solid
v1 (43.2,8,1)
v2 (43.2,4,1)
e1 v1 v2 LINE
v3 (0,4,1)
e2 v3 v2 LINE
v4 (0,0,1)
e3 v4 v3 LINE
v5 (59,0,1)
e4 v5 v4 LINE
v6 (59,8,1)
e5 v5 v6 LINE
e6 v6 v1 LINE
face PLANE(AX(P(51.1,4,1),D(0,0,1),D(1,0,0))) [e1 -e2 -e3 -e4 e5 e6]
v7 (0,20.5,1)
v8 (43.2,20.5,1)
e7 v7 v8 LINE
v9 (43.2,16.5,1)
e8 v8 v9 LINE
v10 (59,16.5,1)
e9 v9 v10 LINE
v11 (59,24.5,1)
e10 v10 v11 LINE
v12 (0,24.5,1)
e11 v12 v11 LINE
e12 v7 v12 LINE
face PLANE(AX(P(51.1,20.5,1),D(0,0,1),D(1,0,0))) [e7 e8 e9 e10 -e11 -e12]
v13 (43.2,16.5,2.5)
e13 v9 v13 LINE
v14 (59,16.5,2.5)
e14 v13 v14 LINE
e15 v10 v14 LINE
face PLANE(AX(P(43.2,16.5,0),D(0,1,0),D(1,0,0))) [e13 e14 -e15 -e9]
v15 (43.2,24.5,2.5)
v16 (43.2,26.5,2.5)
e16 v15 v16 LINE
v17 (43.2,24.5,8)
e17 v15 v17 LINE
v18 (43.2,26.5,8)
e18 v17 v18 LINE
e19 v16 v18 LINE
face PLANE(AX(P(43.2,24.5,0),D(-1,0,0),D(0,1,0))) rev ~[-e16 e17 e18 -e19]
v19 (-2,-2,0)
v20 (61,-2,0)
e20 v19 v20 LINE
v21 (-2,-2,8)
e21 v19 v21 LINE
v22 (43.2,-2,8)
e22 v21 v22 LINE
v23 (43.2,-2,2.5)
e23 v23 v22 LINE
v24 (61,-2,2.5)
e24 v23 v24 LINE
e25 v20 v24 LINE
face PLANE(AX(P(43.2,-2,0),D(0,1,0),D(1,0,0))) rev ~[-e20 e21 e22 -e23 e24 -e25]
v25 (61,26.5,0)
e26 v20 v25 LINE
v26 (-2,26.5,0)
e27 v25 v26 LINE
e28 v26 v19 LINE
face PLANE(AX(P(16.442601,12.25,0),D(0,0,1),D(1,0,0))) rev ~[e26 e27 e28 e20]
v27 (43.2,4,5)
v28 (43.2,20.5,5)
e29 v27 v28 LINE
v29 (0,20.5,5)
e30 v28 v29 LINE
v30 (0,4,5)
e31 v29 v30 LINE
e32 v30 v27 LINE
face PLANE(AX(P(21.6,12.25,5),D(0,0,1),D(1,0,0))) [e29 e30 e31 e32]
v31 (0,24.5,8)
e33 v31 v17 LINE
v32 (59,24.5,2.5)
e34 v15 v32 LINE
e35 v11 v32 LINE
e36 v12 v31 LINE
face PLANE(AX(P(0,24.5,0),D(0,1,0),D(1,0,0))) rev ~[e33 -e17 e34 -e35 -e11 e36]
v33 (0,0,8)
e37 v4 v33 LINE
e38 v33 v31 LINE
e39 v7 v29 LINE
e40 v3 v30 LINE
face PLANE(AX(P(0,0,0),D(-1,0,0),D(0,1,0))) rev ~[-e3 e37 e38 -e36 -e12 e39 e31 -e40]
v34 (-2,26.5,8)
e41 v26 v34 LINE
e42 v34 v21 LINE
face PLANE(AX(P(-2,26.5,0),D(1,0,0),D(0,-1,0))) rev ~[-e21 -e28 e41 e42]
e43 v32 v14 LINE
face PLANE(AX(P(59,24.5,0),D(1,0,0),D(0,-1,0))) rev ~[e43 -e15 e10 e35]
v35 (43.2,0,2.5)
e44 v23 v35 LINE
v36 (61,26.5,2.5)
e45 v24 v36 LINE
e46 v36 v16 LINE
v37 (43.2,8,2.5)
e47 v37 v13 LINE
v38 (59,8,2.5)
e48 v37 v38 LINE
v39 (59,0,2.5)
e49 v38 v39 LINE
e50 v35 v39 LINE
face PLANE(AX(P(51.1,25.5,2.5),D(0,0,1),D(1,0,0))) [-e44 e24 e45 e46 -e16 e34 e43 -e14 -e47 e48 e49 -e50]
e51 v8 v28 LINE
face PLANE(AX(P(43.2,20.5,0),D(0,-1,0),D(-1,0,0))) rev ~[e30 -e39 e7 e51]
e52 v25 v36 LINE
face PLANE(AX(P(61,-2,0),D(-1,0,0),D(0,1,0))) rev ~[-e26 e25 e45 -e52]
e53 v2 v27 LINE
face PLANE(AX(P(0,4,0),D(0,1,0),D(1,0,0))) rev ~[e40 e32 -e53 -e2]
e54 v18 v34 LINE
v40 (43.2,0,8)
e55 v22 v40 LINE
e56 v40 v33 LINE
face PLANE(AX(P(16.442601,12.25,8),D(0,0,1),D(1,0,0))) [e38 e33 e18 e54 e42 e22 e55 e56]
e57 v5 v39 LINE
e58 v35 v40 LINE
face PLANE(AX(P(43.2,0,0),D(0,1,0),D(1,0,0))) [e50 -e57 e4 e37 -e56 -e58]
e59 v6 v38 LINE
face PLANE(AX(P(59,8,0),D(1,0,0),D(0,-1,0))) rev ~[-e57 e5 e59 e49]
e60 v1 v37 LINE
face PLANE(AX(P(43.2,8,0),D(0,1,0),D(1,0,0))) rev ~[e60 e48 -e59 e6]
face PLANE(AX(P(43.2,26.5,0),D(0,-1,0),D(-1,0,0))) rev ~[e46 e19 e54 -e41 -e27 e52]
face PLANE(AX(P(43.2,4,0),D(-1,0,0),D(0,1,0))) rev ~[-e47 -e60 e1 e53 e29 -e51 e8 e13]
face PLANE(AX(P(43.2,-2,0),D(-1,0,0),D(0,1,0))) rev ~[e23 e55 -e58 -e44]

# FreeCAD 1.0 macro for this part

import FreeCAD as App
import Part
import Sketcher

V = App.Vector
Q = App.Units.Quantity

doc = App.newDocument("Part")
body = doc.addObject("PartDesign::Body", "Body")

sketch1 = body.newObject("Sketcher::SketchObject", "Sketch")
sketch1.AttachmentSupport = (doc.getObject("XY_Plane"), [""])
sketch1.MapMode = "FlatFace"
sketch1.addGeometry(Part.LineSegment(V(59, 16.5, 0), V(59, 24.5, 0)), False)
sketch1.addGeometry(Part.LineSegment(V(59, 24.5, 0), V(0, 24.5, 0)), False)
sketch1.addGeometry(Part.LineSegment(V(0, 24.5, 0), V(0, 20.5, 0)), False)
sketch1.addGeometry(Part.LineSegment(V(0, 20.5, 0), V(43.2, 20.5, 0)), False)
sketch1.addGeometry(Part.LineSegment(V(43.2, 20.5, 0), V(43.2, 16.5, 0)), False)
sketch1.addGeometry(Part.LineSegment(V(43.2, 16.5, 0), V(59, 16.5, 0)), False)
sketch1.addConstraint(Sketcher.Constraint("Coincident", 0, 2, 1, 1))
sketch1.addConstraint(Sketcher.Constraint("Coincident", 1, 2, 2, 1))
sketch1.addConstraint(Sketcher.Constraint("Coincident", 2, 2, 3, 1))
sketch1.addConstraint(Sketcher.Constraint("Coincident", 3, 2, 4, 1))
sketch1.addConstraint(Sketcher.Constraint("Coincident", 4, 2, 5, 1))
sketch1.addConstraint(Sketcher.Constraint("Coincident", 5, 2, 0, 1))
sketch1.addConstraint(Sketcher.Constraint("Vertical", 0))
sketch1.addConstraint(Sketcher.Constraint("Horizontal", 1))
sketch1.addConstraint(Sketcher.Constraint("Vertical", 2))
sketch1.addConstraint(Sketcher.Constraint("Horizontal", 3))
sketch1.addConstraint(Sketcher.Constraint("Vertical", 4))
sketch1.addConstraint(Sketcher.Constraint("Horizontal", 5))
sketch1.addConstraint(Sketcher.Constraint("PointOnObject", 1, 2, -2))
sketch1.addConstraint(Sketcher.Constraint("Equal", 2, 4))
sketch1.addConstraint(Sketcher.Constraint("DistanceX", 1, 2, 1, 1, Q("59 mm")))
sketch1.addConstraint(Sketcher.Constraint("DistanceY", 0, 1, 0, 2, Q("8 mm")))
sketch1.addConstraint(Sketcher.Constraint("DistanceX", 3, 1, 3, 2, Q("43.2 mm")))
sketch1.addConstraint(Sketcher.Constraint("DistanceY", -1, 1, 0, 2, Q("24.5 mm")))
pad1 = body.newObject("PartDesign::Pad", "Pad")
pad1.Profile = sketch1
pad1.Length = 1
body2 = doc.addObject("PartDesign::Body", "Body001")

sketch2 = body2.newObject("Sketcher::SketchObject", "Sketch001")
sketch2.AttachmentSupport = (doc.getObject("XY_Plane001"), [""])
sketch2.MapMode = "FlatFace"
sketch2.addGeometry(Part.LineSegment(V(59, 0, 0), V(59, 8, 0)), False)
sketch2.addGeometry(Part.LineSegment(V(59, 8, 0), V(43.2, 8, 0)), False)
sketch2.addGeometry(Part.LineSegment(V(43.2, 8, 0), V(43.2, 4, 0)), False)
sketch2.addGeometry(Part.LineSegment(V(43.2, 4, 0), V(0, 4, 0)), False)
sketch2.addGeometry(Part.LineSegment(V(0, 4, 0), V(0, 0, 0)), False)
sketch2.addGeometry(Part.LineSegment(V(0, 0, 0), V(59, 0, 0)), False)
sketch2.addConstraint(Sketcher.Constraint("Coincident", 0, 2, 1, 1))
sketch2.addConstraint(Sketcher.Constraint("Coincident", 1, 2, 2, 1))
sketch2.addConstraint(Sketcher.Constraint("Coincident", 2, 2, 3, 1))
sketch2.addConstraint(Sketcher.Constraint("Coincident", 3, 2, 4, 1))
sketch2.addConstraint(Sketcher.Constraint("Coincident", 4, 2, 5, 1))
sketch2.addConstraint(Sketcher.Constraint("Coincident", 5, 2, 0, 1))
sketch2.addConstraint(Sketcher.Constraint("Vertical", 0))
sketch2.addConstraint(Sketcher.Constraint("Horizontal", 1))
sketch2.addConstraint(Sketcher.Constraint("Vertical", 2))
sketch2.addConstraint(Sketcher.Constraint("Horizontal", 3))
sketch2.addConstraint(Sketcher.Constraint("Vertical", 4))
sketch2.addConstraint(Sketcher.Constraint("Horizontal", 5))
sketch2.addConstraint(Sketcher.Constraint("Coincident", 4, 2, -1, 1))
sketch2.addConstraint(Sketcher.Constraint("Equal", 2, 4))
sketch2.addConstraint(Sketcher.Constraint("DistanceX", 5, 1, 5, 2, Q("59 mm")))
sketch2.addConstraint(Sketcher.Constraint("DistanceY", 0, 1, 0, 2, Q("8 mm")))
sketch2.addConstraint(Sketcher.Constraint("DistanceX", 1, 2, 1, 1, Q("15.8 mm")))
pad2 = body2.newObject("PartDesign::Pad", "Pad001")
pad2.Profile = sketch2
pad2.Length = 1
body.AllowCompound = True
doc.recompute()

boolean = body.newObject("PartDesign::Boolean", "Boolean")
boolean.Type = "Fuse"
boolean.addObjects([body2])

sketch3 = body.newObject("Sketcher::SketchObject", "Sketch002")
sketch3.AttachmentSupport = (doc.getObject("XY_Plane"), [""])
sketch3.MapMode = "FlatFace"
sketch3.addGeometry(Part.LineSegment(V(43.2, 26.5, 0), V(43.2, 24.5, 0)), False)
sketch3.addGeometry(Part.LineSegment(V(43.2, 24.5, 0), V(59, 24.5, 0)), False)
sketch3.addGeometry(Part.LineSegment(V(59, 24.5, 0), V(59, 16.5, 0)), False)
sketch3.addGeometry(Part.LineSegment(V(59, 16.5, 0), V(43.2, 16.5, 0)), False)
sketch3.addGeometry(Part.LineSegment(V(43.2, 16.5, 0), V(43.2, 8, 0)), False)
sketch3.addGeometry(Part.LineSegment(V(43.2, 8, 0), V(59, 8, 0)), False)
sketch3.addGeometry(Part.LineSegment(V(59, 8, 0), V(59, 0, 0)), False)
sketch3.addGeometry(Part.LineSegment(V(59, 0, 0), V(43.2, 0, 0)), False)
sketch3.addGeometry(Part.LineSegment(V(43.2, 0, 0), V(43.2, -2, 0)), False)
sketch3.addGeometry(Part.LineSegment(V(43.2, -2, 0), V(61, -2, 0)), False)
sketch3.addGeometry(Part.LineSegment(V(61, -2, 0), V(61, 26.5, 0)), False)
sketch3.addGeometry(Part.LineSegment(V(61, 26.5, 0), V(43.2, 26.5, 0)), False)
sketch3.addConstraint(Sketcher.Constraint("Coincident", 0, 2, 1, 1))
sketch3.addConstraint(Sketcher.Constraint("Coincident", 1, 2, 2, 1))
sketch3.addConstraint(Sketcher.Constraint("Coincident", 2, 2, 3, 1))
sketch3.addConstraint(Sketcher.Constraint("Coincident", 3, 2, 4, 1))
sketch3.addConstraint(Sketcher.Constraint("Coincident", 4, 2, 5, 1))
sketch3.addConstraint(Sketcher.Constraint("Coincident", 5, 2, 6, 1))
sketch3.addConstraint(Sketcher.Constraint("Coincident", 6, 2, 7, 1))
sketch3.addConstraint(Sketcher.Constraint("Coincident", 7, 2, 8, 1))
sketch3.addConstraint(Sketcher.Constraint("Coincident", 8, 2, 9, 1))
sketch3.addConstraint(Sketcher.Constraint("Coincident", 9, 2, 10, 1))
sketch3.addConstraint(Sketcher.Constraint("Coincident", 10, 2, 11, 1))
sketch3.addConstraint(Sketcher.Constraint("Coincident", 11, 2, 0, 1))
sketch3.addConstraint(Sketcher.Constraint("Vertical", 0))
sketch3.addConstraint(Sketcher.Constraint("Horizontal", 1))
sketch3.addConstraint(Sketcher.Constraint("Vertical", 2))
sketch3.addConstraint(Sketcher.Constraint("Horizontal", 3))
sketch3.addConstraint(Sketcher.Constraint("Vertical", 4))
sketch3.addConstraint(Sketcher.Constraint("Horizontal", 5))
sketch3.addConstraint(Sketcher.Constraint("Vertical", 6))
sketch3.addConstraint(Sketcher.Constraint("Horizontal", 7))
sketch3.addConstraint(Sketcher.Constraint("Vertical", 8))
sketch3.addConstraint(Sketcher.Constraint("Horizontal", 9))
sketch3.addConstraint(Sketcher.Constraint("Vertical", 10))
sketch3.addConstraint(Sketcher.Constraint("Horizontal", 11))
sketch3.addConstraint(Sketcher.Constraint("PointOnObject", 6, 2, -1))
sketch3.addConstraint(Sketcher.Constraint("Vertical", 0, 2, 3, 2))
sketch3.addConstraint(Sketcher.Constraint("Vertical", 2, 2, 5, 2))
sketch3.addConstraint(Sketcher.Constraint("Vertical", 4, 2, 7, 2))
sketch3.addConstraint(Sketcher.Constraint("Equal", 2, 6))
sketch3.addConstraint(Sketcher.Constraint("Equal", 0, 8))
sketch3.addConstraint(Sketcher.Constraint("DistanceY", 0, 2, 0, 1, Q("2 mm")))
sketch3.addConstraint(Sketcher.Constraint("DistanceY", 2, 2, 2, 1, Q("8 mm")))
sketch3.addConstraint(Sketcher.Constraint("DistanceX", 1, 1, 1, 2, Q("15.8 mm")))
sketch3.addConstraint(Sketcher.Constraint("DistanceX", 9, 1, 9, 2, Q("17.8 mm")))
sketch3.addConstraint(Sketcher.Constraint("DistanceY", 4, 2, 4, 1, Q("8.5 mm")))
sketch3.addConstraint(Sketcher.Constraint("DistanceX", -1, 1, 1, 2, Q("59 mm")))
pad3 = body.newObject("PartDesign::Pad", "Pad002")
pad3.Profile = sketch3
pad3.Length = 2.5

sketch4 = body.newObject("Sketcher::SketchObject", "Sketch003")
sketch4.AttachmentSupport = (doc.getObject("XY_Plane"), [""])
sketch4.MapMode = "FlatFace"
sketch4.addGeometry(Part.LineSegment(V(43, 20, 0), V(0, 20, 0)), False)
sketch4.addGeometry(Part.LineSegment(V(0, 20, 0), V(0, 4, 0)), False)
sketch4.addGeometry(Part.LineSegment(V(0, 4, 0), V(43, 4, 0)), False)
sketch4.addGeometry(Part.LineSegment(V(43, 4, 0), V(43, 20, 0)), False)
sketch4.addConstraint(Sketcher.Constraint("Coincident", 0, 2, 1, 1))
sketch4.addConstraint(Sketcher.Constraint("Coincident", 1, 2, 2, 1))
sketch4.addConstraint(Sketcher.Constraint("Coincident", 2, 2, 3, 1))
sketch4.addConstraint(Sketcher.Constraint("Coincident", 3, 2, 0, 1))
sketch4.addConstraint(Sketcher.Constraint("Horizontal", 0))
sketch4.addConstraint(Sketcher.Constraint("Vertical", 1))
sketch4.addConstraint(Sketcher.Constraint("Horizontal", 2))
sketch4.addConstraint(Sketcher.Constraint("Vertical", 3))
sketch4.addConstraint(Sketcher.Constraint("PointOnObject", 0, 2, -2))
sketch4.addConstraint(Sketcher.Constraint("DistanceX", 0, 2, 0, 1, Q("43.2 mm")))
sketch4.addConstraint(Sketcher.Constraint("DistanceY", 1, 2, 1, 1, Q("16.5 mm")))
sketch4.addConstraint(Sketcher.Constraint("DistanceY", -1, 1, 1, 2, Q("4 mm")))
pad4 = body.newObject("PartDesign::Pad", "Pad003")
pad4.Profile = sketch4
pad4.Length = 5

sketch5 = body.newObject("Sketcher::SketchObject", "Sketch004")
sketch5.AttachmentSupport = (doc.getObject("XY_Plane"), [""])
sketch5.MapMode = "FlatFace"
sketch5.addGeometry(Part.LineSegment(V(43.2, 24.5, 0), V(43.2, 26.5, 0)), False)
sketch5.addGeometry(Part.LineSegment(V(43.2, 26.5, 0), V(-2, 26.5, 0)), False)
sketch5.addGeometry(Part.LineSegment(V(-2, 26.5, 0), V(-2, -2, 0)), False)
sketch5.addGeometry(Part.LineSegment(V(-2, -2, 0), V(43.2, -2, 0)), False)
sketch5.addGeometry(Part.LineSegment(V(43.2, -2, 0), V(43.2, 0, 0)), False)
sketch5.addGeometry(Part.LineSegment(V(43.2, 0, 0), V(0, 0, 0)), False)
sketch5.addGeometry(Part.LineSegment(V(0, 0, 0), V(0, 24.5, 0)), False)
sketch5.addGeometry(Part.LineSegment(V(0, 24.5, 0), V(43.2, 24.5, 0)), False)
sketch5.addConstraint(Sketcher.Constraint("Coincident", 0, 2, 1, 1))
sketch5.addConstraint(Sketcher.Constraint("Coincident", 1, 2, 2, 1))
sketch5.addConstraint(Sketcher.Constraint("Coincident", 2, 2, 3, 1))
sketch5.addConstraint(Sketcher.Constraint("Coincident", 3, 2, 4, 1))
sketch5.addConstraint(Sketcher.Constraint("Coincident", 4, 2, 5, 1))
sketch5.addConstraint(Sketcher.Constraint("Coincident", 5, 2, 6, 1))
sketch5.addConstraint(Sketcher.Constraint("Coincident", 6, 2, 7, 1))
sketch5.addConstraint(Sketcher.Constraint("Coincident", 7, 2, 0, 1))
sketch5.addConstraint(Sketcher.Constraint("Vertical", 0))
sketch5.addConstraint(Sketcher.Constraint("Horizontal", 1))
sketch5.addConstraint(Sketcher.Constraint("Vertical", 2))
sketch5.addConstraint(Sketcher.Constraint("Horizontal", 3))
sketch5.addConstraint(Sketcher.Constraint("Vertical", 4))
sketch5.addConstraint(Sketcher.Constraint("Horizontal", 5))
sketch5.addConstraint(Sketcher.Constraint("Vertical", 6))
sketch5.addConstraint(Sketcher.Constraint("Horizontal", 7))
sketch5.addConstraint(Sketcher.Constraint("Coincident", 5, 2, -1, 1))
sketch5.addConstraint(Sketcher.Constraint("Vertical", 0, 2, 3, 2))
sketch5.addConstraint(Sketcher.Constraint("Equal", 0, 4))
sketch5.addConstraint(Sketcher.Constraint("DistanceY", 0, 1, 0, 2, Q("2 mm")))
sketch5.addConstraint(Sketcher.Constraint("DistanceX", 1, 2, 1, 1, Q("45.2 mm")))
sketch5.addConstraint(Sketcher.Constraint("DistanceX", 5, 2, 5, 1, Q("43.2 mm")))
sketch5.addConstraint(Sketcher.Constraint("DistanceY", 2, 2, 2, 1, Q("28.5 mm")))
pad5 = body.newObject("PartDesign::Pad", "Pad004")
pad5.Profile = sketch5
pad5.Length = 8

doc.recompute()
